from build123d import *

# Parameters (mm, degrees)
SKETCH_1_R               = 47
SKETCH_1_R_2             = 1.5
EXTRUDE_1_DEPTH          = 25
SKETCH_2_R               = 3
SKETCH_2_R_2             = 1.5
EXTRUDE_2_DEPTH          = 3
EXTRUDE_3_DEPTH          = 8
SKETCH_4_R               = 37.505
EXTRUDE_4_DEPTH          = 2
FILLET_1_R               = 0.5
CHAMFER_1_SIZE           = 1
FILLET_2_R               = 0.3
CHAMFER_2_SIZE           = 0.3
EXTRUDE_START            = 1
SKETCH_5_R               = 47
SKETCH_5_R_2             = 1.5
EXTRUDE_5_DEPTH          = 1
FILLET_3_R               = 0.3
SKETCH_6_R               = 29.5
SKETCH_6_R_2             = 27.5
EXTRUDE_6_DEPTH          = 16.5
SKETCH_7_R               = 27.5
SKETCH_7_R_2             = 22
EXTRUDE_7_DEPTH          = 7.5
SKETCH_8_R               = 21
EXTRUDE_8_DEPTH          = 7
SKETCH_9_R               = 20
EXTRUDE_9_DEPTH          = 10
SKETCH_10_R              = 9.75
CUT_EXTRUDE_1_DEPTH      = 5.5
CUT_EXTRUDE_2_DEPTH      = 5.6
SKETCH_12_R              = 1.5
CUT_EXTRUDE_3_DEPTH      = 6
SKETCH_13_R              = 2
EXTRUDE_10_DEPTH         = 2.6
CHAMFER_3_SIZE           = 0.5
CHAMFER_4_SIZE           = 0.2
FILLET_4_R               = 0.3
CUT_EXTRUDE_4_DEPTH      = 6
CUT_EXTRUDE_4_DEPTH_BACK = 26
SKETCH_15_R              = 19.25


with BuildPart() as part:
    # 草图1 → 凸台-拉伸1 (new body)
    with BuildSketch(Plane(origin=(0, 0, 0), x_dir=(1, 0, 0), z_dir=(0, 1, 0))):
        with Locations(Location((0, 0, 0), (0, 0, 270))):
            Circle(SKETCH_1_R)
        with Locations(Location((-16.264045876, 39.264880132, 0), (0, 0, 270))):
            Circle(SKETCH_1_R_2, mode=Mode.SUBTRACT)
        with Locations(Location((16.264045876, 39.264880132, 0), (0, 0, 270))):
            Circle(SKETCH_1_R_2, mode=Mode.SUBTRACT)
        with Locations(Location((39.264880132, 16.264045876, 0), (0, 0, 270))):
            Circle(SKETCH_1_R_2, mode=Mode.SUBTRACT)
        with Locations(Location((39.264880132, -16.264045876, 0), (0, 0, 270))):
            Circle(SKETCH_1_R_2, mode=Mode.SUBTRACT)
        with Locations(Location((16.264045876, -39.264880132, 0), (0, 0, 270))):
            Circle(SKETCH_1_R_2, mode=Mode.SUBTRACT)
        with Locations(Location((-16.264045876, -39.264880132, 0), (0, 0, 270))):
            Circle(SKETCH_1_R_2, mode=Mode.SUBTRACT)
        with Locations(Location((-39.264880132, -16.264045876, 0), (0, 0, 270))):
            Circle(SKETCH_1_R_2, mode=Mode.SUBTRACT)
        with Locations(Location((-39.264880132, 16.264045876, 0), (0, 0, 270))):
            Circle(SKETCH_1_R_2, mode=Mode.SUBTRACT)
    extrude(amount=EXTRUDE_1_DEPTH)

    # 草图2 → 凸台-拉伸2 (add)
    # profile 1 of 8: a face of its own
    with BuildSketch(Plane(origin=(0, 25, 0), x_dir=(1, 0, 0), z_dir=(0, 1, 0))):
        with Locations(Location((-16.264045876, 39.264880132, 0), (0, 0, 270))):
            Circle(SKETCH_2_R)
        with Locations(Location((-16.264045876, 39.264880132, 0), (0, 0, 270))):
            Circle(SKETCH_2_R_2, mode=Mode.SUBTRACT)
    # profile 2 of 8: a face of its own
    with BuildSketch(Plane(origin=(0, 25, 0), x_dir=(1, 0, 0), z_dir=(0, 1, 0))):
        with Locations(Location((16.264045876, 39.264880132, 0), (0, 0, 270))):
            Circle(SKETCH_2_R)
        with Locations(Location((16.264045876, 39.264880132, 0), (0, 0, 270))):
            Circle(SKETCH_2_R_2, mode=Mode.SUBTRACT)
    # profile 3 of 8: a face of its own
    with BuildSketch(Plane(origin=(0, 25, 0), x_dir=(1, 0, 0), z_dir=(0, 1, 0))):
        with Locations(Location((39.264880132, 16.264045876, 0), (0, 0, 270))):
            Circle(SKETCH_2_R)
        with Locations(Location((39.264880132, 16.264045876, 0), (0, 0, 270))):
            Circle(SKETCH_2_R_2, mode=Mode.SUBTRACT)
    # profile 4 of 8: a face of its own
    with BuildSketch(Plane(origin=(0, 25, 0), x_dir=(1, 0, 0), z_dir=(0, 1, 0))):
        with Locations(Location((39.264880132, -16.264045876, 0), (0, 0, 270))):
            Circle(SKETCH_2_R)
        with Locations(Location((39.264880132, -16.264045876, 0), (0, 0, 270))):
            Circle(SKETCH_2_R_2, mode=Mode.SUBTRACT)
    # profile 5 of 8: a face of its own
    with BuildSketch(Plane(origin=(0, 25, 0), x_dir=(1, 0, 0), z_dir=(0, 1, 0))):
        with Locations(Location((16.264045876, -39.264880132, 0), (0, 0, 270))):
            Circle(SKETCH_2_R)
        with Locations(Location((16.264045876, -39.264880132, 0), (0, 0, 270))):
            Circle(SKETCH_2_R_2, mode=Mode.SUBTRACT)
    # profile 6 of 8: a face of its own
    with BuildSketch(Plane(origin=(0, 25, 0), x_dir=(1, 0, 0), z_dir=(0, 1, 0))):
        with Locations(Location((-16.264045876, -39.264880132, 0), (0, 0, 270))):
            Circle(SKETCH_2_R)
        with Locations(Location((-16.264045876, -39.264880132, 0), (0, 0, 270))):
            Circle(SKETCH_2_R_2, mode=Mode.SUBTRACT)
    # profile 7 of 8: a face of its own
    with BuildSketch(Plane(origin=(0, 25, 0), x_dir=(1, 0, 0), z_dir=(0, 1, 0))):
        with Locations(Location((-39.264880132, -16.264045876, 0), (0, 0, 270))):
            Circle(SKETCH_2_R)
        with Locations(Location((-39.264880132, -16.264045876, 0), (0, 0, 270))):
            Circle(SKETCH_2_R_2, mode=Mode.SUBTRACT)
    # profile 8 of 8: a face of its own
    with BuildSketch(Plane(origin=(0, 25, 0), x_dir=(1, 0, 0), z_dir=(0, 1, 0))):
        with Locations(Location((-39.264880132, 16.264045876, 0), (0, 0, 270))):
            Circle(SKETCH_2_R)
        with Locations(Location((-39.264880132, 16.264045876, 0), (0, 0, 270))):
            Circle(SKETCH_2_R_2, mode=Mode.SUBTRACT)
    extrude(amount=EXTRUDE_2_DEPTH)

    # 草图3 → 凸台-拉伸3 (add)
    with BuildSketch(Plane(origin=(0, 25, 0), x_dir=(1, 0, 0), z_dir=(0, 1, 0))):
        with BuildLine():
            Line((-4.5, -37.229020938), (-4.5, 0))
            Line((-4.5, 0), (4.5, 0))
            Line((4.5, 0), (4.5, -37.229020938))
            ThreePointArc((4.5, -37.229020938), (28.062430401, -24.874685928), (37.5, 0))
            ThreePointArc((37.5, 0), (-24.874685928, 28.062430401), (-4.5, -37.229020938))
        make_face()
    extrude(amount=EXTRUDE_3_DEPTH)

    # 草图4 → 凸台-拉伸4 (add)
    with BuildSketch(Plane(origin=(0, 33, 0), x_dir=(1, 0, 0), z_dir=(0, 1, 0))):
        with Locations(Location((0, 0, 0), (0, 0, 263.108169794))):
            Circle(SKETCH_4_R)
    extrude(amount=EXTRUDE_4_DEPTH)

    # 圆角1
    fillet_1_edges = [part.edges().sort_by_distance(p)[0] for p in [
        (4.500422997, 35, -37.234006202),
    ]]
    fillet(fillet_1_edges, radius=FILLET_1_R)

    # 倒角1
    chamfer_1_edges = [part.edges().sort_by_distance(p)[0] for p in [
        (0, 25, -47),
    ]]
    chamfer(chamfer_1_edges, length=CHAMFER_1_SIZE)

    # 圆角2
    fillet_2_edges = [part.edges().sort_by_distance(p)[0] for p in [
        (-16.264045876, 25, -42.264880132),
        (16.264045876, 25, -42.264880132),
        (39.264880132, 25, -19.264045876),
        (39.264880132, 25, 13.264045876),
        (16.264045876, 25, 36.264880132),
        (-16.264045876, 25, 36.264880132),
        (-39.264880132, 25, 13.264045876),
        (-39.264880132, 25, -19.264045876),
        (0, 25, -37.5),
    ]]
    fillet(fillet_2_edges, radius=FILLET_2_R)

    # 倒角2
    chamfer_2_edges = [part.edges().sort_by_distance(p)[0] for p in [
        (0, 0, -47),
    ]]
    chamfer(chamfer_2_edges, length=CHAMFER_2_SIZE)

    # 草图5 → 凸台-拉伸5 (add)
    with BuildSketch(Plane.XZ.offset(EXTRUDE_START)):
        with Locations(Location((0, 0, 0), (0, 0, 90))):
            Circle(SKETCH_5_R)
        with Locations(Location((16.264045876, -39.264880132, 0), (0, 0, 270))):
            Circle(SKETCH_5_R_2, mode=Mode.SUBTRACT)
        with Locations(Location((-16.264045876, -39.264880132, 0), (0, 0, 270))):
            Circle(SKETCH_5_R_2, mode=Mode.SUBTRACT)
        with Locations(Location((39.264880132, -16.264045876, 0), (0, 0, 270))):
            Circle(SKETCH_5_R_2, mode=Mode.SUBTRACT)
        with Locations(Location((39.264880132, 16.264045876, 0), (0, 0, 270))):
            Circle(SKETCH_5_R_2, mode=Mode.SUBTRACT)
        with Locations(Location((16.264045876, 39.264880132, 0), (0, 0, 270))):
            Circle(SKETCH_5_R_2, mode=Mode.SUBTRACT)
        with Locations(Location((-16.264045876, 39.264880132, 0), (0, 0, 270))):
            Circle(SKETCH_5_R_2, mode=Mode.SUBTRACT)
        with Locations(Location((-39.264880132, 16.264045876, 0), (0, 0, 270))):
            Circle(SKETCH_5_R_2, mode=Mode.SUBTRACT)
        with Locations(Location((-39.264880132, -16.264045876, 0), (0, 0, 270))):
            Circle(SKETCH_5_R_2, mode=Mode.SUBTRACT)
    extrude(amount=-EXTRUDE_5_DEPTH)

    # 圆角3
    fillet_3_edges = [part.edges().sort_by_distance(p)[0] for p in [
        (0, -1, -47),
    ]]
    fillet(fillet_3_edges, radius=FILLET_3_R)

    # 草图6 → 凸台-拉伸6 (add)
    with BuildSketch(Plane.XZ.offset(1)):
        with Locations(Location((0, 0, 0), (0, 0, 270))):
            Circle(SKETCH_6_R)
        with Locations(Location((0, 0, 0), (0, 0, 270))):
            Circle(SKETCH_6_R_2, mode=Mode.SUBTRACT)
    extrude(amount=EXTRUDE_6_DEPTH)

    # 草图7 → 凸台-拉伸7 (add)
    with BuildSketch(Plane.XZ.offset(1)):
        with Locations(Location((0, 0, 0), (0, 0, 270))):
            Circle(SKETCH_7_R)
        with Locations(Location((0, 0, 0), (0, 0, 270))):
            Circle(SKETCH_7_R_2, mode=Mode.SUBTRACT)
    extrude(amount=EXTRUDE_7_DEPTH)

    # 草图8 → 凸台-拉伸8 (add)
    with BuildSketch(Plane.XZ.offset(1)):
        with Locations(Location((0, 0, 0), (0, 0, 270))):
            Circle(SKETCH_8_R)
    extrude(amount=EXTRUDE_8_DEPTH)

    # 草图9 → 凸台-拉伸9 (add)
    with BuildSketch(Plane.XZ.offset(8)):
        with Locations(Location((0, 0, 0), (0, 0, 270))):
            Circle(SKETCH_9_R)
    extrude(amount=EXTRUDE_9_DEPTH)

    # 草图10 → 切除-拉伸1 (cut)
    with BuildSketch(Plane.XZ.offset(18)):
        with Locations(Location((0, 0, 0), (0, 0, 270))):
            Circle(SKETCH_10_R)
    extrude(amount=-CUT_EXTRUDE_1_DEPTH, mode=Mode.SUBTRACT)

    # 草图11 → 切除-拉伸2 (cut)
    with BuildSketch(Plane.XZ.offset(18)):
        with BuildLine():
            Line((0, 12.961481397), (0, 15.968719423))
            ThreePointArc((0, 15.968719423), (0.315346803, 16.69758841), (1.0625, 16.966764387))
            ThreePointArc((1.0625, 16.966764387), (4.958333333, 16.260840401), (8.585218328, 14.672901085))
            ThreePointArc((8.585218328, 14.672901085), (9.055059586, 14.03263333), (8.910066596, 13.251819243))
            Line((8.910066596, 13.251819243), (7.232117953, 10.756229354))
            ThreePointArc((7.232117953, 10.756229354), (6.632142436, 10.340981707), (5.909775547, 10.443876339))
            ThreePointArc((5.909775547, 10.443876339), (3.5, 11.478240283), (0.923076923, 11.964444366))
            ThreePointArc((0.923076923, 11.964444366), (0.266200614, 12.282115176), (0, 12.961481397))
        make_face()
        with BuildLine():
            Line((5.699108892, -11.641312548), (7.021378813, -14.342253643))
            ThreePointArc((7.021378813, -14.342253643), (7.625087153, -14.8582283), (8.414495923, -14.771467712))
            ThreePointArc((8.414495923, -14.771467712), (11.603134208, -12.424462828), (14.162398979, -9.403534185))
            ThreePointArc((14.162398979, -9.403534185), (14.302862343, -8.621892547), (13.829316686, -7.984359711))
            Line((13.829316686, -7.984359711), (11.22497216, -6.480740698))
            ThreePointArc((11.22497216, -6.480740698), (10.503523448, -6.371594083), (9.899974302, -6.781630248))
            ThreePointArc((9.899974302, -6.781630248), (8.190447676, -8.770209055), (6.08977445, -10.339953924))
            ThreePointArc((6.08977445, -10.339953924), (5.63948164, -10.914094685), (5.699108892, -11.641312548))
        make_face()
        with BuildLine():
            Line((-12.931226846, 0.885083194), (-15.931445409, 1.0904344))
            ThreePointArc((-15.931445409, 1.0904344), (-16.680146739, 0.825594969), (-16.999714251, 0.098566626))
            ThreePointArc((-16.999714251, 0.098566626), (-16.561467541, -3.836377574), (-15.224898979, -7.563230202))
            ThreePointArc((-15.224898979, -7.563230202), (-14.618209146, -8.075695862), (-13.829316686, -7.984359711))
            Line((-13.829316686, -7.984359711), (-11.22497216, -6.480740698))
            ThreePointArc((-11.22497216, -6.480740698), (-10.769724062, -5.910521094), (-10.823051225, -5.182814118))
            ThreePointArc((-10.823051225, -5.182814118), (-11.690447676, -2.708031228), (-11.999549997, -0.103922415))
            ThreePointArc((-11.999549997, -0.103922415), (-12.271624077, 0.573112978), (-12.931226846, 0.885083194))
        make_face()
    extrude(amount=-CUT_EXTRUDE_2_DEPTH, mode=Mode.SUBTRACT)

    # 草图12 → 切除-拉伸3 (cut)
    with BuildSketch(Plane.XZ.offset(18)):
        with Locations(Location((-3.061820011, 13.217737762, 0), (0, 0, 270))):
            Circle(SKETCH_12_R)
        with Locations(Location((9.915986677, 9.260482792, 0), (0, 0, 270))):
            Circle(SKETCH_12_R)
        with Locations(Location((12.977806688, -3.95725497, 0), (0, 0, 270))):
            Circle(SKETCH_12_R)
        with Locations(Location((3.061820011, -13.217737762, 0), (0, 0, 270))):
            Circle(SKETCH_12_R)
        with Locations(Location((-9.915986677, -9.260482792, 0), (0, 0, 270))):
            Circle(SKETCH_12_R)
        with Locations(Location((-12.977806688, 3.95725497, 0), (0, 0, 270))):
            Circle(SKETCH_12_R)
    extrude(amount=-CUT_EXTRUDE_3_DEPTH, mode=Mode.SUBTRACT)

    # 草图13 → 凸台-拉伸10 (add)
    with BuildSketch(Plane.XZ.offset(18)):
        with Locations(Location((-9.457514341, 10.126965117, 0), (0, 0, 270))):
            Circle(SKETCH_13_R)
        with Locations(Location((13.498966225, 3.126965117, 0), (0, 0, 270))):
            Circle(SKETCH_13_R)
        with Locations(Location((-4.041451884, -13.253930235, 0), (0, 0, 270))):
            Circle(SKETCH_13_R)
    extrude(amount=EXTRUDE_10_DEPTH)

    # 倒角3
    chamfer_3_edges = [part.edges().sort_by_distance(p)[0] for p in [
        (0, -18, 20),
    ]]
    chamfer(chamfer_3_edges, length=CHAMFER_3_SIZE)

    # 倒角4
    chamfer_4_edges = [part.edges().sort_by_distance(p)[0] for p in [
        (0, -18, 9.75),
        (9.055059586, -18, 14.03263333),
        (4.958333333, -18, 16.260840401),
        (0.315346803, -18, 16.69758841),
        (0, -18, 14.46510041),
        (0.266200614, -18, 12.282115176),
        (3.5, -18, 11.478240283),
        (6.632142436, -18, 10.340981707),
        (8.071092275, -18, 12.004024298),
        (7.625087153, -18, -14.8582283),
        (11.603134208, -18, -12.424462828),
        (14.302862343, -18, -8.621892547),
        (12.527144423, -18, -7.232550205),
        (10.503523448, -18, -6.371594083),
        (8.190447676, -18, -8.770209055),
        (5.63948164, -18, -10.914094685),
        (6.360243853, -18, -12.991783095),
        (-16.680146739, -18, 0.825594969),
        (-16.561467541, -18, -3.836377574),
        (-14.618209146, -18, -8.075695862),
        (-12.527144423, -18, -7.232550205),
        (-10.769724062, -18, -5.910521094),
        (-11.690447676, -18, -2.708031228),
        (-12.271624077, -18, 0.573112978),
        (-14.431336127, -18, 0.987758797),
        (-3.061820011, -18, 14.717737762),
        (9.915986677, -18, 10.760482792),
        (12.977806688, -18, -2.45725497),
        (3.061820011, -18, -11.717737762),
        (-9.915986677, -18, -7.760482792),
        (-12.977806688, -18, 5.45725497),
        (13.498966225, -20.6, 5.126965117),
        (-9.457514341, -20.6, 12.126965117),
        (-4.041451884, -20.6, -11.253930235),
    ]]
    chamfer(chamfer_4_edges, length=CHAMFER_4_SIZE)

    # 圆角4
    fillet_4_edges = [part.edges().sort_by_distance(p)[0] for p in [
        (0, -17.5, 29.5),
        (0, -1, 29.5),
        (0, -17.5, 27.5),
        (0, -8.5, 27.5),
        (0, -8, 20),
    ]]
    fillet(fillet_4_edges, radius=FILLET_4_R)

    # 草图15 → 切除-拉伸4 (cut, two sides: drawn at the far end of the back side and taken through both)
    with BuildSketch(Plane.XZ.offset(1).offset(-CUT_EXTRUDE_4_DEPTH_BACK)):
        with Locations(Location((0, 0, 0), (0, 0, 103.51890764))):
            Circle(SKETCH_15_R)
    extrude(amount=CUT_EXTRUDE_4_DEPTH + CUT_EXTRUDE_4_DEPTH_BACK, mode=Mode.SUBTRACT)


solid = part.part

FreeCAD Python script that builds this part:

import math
import FreeCAD as App
import Part
import Sketcher

V = App.Vector
Q = App.Units.Quantity


def edges_at(feature, points):
    """Names of the edges that pass closest to the given points."""
    edges = feature.Shape.Edges
    near = lambda p: min(range(len(edges)), key=lambda i: edges[i].distToShape(Part.Vertex(*p))[0])
    return sorted({f"Edge{near(p) + 1}" for p in points})

doc = App.newDocument("Part")
body = doc.addObject("PartDesign::Body", "Body")

# Sketch on XZ plane
sketch1 = body.newObject("Sketcher::SketchObject", "Sketch")
sketch1.AttachmentSupport = (doc.getObject("XZ_Plane"), [""])
sketch1.MapMode = "FlatFace"
sketch1.addGeometry(Part.Circle(V(0, 0, 0), V(0, 0, 1), 47), False)
sketch1.addGeometry(Part.Circle(V(-39.3, -16.3, 0), V(0, 0, 1), 1.5), False)
sketch1.addGeometry(Part.Circle(V(-16.3, -39.3, 0), V(0, 0, 1), 1.5), False)
sketch1.addGeometry(Part.Circle(V(-39.3, 16.3, 0), V(0, 0, 1), 1.5), False)
sketch1.addGeometry(Part.Circle(V(-16.3, 39.3, 0), V(0, 0, 1), 1.5), False)
sketch1.addGeometry(Part.Circle(V(16.3, -39.3, 0), V(0, 0, 1), 1.5), False)
sketch1.addGeometry(Part.Circle(V(39.3, -16.3, 0), V(0, 0, 1), 1.5), False)
sketch1.addGeometry(Part.Circle(V(16.3, 39.3, 0), V(0, 0, 1), 1.5), False)
sketch1.addGeometry(Part.Circle(V(39.3, 16.3, 0), V(0, 0, 1), 1.5), False)
sketch1.addConstraint(Sketcher.Constraint("Coincident", 0, 3, -1, 1))
sketch1.addConstraint(Sketcher.Constraint("Equal", 1, 2))
sketch1.addConstraint(Sketcher.Constraint("Equal", 2, 3))
sketch1.addConstraint(Sketcher.Constraint("Equal", 3, 4))
sketch1.addConstraint(Sketcher.Constraint("Equal", 4, 5))
sketch1.addConstraint(Sketcher.Constraint("Equal", 5, 6))
sketch1.addConstraint(Sketcher.Constraint("Equal", 6, 7))
sketch1.addConstraint(Sketcher.Constraint("Equal", 7, 8))
sketch1.addConstraint(Sketcher.Constraint("Symmetric", 4, 3, 5, 3, -1, 1))
sketch1.addConstraint(Sketcher.Constraint("Symmetric", 3, 3, 6, 3, -1, 1))
sketch1.addConstraint(Sketcher.Constraint("Symmetric", 2, 3, 7, 3, -1, 1))
sketch1.addConstraint(Sketcher.Constraint("Symmetric", 1, 3, 8, 3, -1, 1))
sketch1.addConstraint(Sketcher.Constraint("Symmetric", 2, 3, 5, 3, -2))
sketch1.addConstraint(Sketcher.Constraint("Symmetric", 1, 3, 6, 3, -2))
sketch1.addConstraint(Sketcher.Constraint("Diameter", 0, Q("94 mm")))
sketch1.addConstraint(Sketcher.Constraint("Diameter", 1, Q("3 mm")))
sketch1.addConstraint(Sketcher.Constraint("DistanceX", 1, 3, -1, 1, Q("39.26488 mm")))
sketch1.addConstraint(Sketcher.Constraint("DistanceY", 2, 3, -1, 1, Q("39.26488 mm")))
sketch1.addConstraint(Sketcher.Constraint("DistanceY", 1, 3, 3, 3, Q("32.528092 mm")))
sketch1.addConstraint(Sketcher.Constraint("DistanceX", 2, 3, 5, 3, Q("32.528092 mm")))
pad1 = body.newObject("PartDesign::Pad", "Pad")
pad1.Profile = sketch1
pad1.Length = 25
pad1.Reversed = True

# Sketch on XZ plane
sketch2 = body.newObject("Sketcher::SketchObject", "Sketch001")
sketch2.AttachmentSupport = (doc.getObject("XZ_Plane"), [""])
sketch2.MapMode = "FlatFace"
sketch2.AttachmentOffset = App.Placement(V(0, 0, -25), App.Rotation())
sketch2.addGeometry(Part.Circle(V(-16.3, -39.3, 0), V(0, 0, 1), 3), False)
sketch2.addGeometry(Part.Circle(V(-16.3, -39.3, 0), V(0, 0, 1), 1.5), False)
sketch2.addGeometry(Part.Circle(V(16.3, -39.3, 0), V(0, 0, 1), 3), False)
sketch2.addGeometry(Part.Circle(V(16.3, -39.3, 0), V(0, 0, 1), 1.5), False)
sketch2.addGeometry(Part.Circle(V(39.3, -16.3, 0), V(0, 0, 1), 3), False)
sketch2.addGeometry(Part.Circle(V(39.3, -16.3, 0), V(0, 0, 1), 1.5), False)
sketch2.addGeometry(Part.Circle(V(39.3, 16.3, 0), V(0, 0, 1), 3), False)
sketch2.addGeometry(Part.Circle(V(39.3, 16.3, 0), V(0, 0, 1), 1.5), False)
sketch2.addGeometry(Part.Circle(V(16.3, 39.3, 0), V(0, 0, 1), 3), False)
sketch2.addGeometry(Part.Circle(V(16.3, 39.3, 0), V(0, 0, 1), 1.5), False)
sketch2.addGeometry(Part.Circle(V(-16.3, 39.3, 0), V(0, 0, 1), 3), False)
sketch2.addGeometry(Part.Circle(V(-16.3, 39.3, 0), V(0, 0, 1), 1.5), False)
sketch2.addGeometry(Part.Circle(V(-39.3, 16.3, 0), V(0, 0, 1), 3), False)
sketch2.addGeometry(Part.Circle(V(-39.3, 16.3, 0), V(0, 0, 1), 1.5), False)
sketch2.addGeometry(Part.Circle(V(-39.3, -16.3, 0), V(0, 0, 1), 3), False)
sketch2.addGeometry(Part.Circle(V(-39.3, -16.3, 0), V(0, 0, 1), 1.5), False)
sketch2.addConstraint(Sketcher.Constraint("Coincident", 1, 3, 0, 3))
sketch2.addConstraint(Sketcher.Constraint("Coincident", 3, 3, 2, 3))
sketch2.addConstraint(Sketcher.Constraint("Coincident", 5, 3, 4, 3))
sketch2.addConstraint(Sketcher.Constraint("Coincident", 7, 3, 6, 3))
sketch2.addConstraint(Sketcher.Constraint("Coincident", 9, 3, 8, 3))
sketch2.addConstraint(Sketcher.Constraint("Coincident", 11, 3, 10, 3))
sketch2.addConstraint(Sketcher.Constraint("Coincident", 13, 3, 12, 3))
sketch2.addConstraint(Sketcher.Constraint("Coincident", 15, 3, 14, 3))
sketch2.addConstraint(Sketcher.Constraint("Equal", 0, 2))
sketch2.addConstraint(Sketcher.Constraint("Equal", 1, 3))
sketch2.addConstraint(Sketcher.Constraint("Equal", 2, 4))
sketch2.addConstraint(Sketcher.Constraint("Equal", 3, 5))
sketch2.addConstraint(Sketcher.Constraint("Equal", 4, 6))
sketch2.addConstraint(Sketcher.Constraint("Equal", 5, 7))
sketch2.addConstraint(Sketcher.Constraint("Equal", 6, 8))
sketch2.addConstraint(Sketcher.Constraint("Equal", 7, 9))
sketch2.addConstraint(Sketcher.Constraint("Equal", 8, 10))
sketch2.addConstraint(Sketcher.Constraint("Equal", 9, 11))
sketch2.addConstraint(Sketcher.Constraint("Equal", 10, 12))
sketch2.addConstraint(Sketcher.Constraint("Equal", 11, 13))
sketch2.addConstraint(Sketcher.Constraint("Equal", 12, 14))
sketch2.addConstraint(Sketcher.Constraint("Equal", 13, 15))
sketch2.addConstraint(Sketcher.Constraint("Symmetric", 0, 3, 8, 3, -1, 1))
sketch2.addConstraint(Sketcher.Constraint("Symmetric", 2, 3, 10, 3, -1, 1))
sketch2.addConstraint(Sketcher.Constraint("Symmetric", 4, 3, 12, 3, -1, 1))
sketch2.addConstraint(Sketcher.Constraint("Symmetric", 6, 3, 14, 3, -1, 1))
sketch2.addConstraint(Sketcher.Constraint("Symmetric", 0, 3, 2, 3, -2))
sketch2.addConstraint(Sketcher.Constraint("Symmetric", 6, 3, 12, 3, -2))
sketch2.addConstraint(Sketcher.Constraint("Diameter", 0, Q("6 mm")))
sketch2.addConstraint(Sketcher.Constraint("Diameter", 1, Q("3 mm")))
sketch2.addConstraint(Sketcher.Constraint("DistanceY", 0, 3, -1, 1, Q("39.26488 mm")))
sketch2.addConstraint(Sketcher.Constraint("DistanceX", -1, 1, 4, 3, Q("39.26488 mm")))
sketch2.addConstraint(Sketcher.Constraint("DistanceX", 0, 3, 2, 3, Q("32.528092 mm")))
sketch2.addConstraint(Sketcher.Constraint("DistanceY", 4, 3, 6, 3, Q("32.528092 mm")))
pad2 = body.newObject("PartDesign::Pad", "Pad001")
pad2.Profile = sketch2
pad2.Length = 3
pad2.Reversed = True

# Sketch on XZ plane
sketch3 = body.newObject("Sketcher::SketchObject", "Sketch002")
sketch3.AttachmentSupport = (doc.getObject("XZ_Plane"), [""])
sketch3.MapMode = "FlatFace"
sketch3.AttachmentOffset = App.Placement(V(0, 0, -25), App.Rotation())
sketch3.addGeometry(Part.LineSegment(V(-4, 37, 0), V(-4, 0, 0)), False)
sketch3.addGeometry(Part.LineSegment(V(-4, 0, 0), V(4, 0, 0)), False)
sketch3.addGeometry(Part.LineSegment(V(4, 0, 0), V(4, 37, 0)), False)
sketch3.addGeometry(Part.ArcOfCircle(Part.Circle(V(0, 0, 0), V(0, 0, 1), 37), math.radians(0), math.radians(83)), False)
sketch3.addGeometry(Part.ArcOfCircle(Part.Circle(V(0, 0, 0), V(0, 0, 1), 38), math.radians(97), math.radians(360)), False)
sketch3.addConstraint(Sketcher.Constraint("Coincident", 0, 2, 1, 1))
sketch3.addConstraint(Sketcher.Constraint("Coincident", 1, 2, 2, 1))
sketch3.addConstraint(Sketcher.Constraint("Coincident", 2, 2, 3, 2))
sketch3.addConstraint(Sketcher.Constraint("Tangent", 3, 1, 4, 2))
sketch3.addConstraint(Sketcher.Constraint("Coincident", 4, 1, 0, 1))
sketch3.addConstraint(Sketcher.Constraint("Vertical", 0))
sketch3.addConstraint(Sketcher.Constraint("Horizontal", 1))
sketch3.addConstraint(Sketcher.Constraint("Vertical", 2))
sketch3.addConstraint(Sketcher.Constraint("Coincident", 3, 3, -1, 1))
sketch3.addConstraint(Sketcher.Constraint("Equal", 3, 4))
sketch3.addConstraint(Sketcher.Constraint("Symmetric", 0, 2, 1, 2, -1, 1))
sketch3.addConstraint(Sketcher.Constraint("PointOnObject", 3, 1, -1))
sketch3.addConstraint(Sketcher.Constraint("Radius", 3, Q("37.5 mm")))
sketch3.addConstraint(Sketcher.Constraint("DistanceX", 1, 1, 1, 2, Q("9 mm")))
pad3 = body.newObject("PartDesign::Pad", "Pad002")
pad3.Profile = sketch3
pad3.Length = 8
pad3.Reversed = True

# Sketch on XZ plane
sketch4 = body.newObject("Sketcher::SketchObject", "Sketch003")
sketch4.AttachmentSupport = (doc.getObject("XZ_Plane"), [""])
sketch4.MapMode = "FlatFace"
sketch4.AttachmentOffset = App.Placement(V(0, 0, -33), App.Rotation())
sketch4.addGeometry(Part.Circle(V(0, 0, 0), V(0, 0, 1), 38), False)
sketch4.addConstraint(Sketcher.Constraint("Coincident", 0, 3, -1, 1))
sketch4.addConstraint(Sketcher.Constraint("Diameter", 0, Q("75.01 mm")))
pad4 = body.newObject("PartDesign::Pad", "Pad003")
pad4.Profile = sketch4
pad4.Length = 2
pad4.Reversed = True
doc.recompute()

fillet = body.newObject("PartDesign::Fillet", "Fillet")
fillet.Base = (pad4, edges_at(pad4, [(4.5, 35, -37.234)]))
fillet.Radius = 0.5
doc.recompute()

chamfer = body.newObject("PartDesign::Chamfer", "Chamfer")
chamfer.Base = (fillet, edges_at(fillet, [(0, 25, -47)]))
chamfer.Size = 1
doc.recompute()

fillet2 = body.newObject("PartDesign::Fillet", "Fillet001")
fillet2.Base = (chamfer, edges_at(chamfer, [
    (-16.264, 25, -42.265),
    (16.264, 25, -42.265),
    (39.265, 25, -19.264),
    (39.265, 25, 13.264),
    (16.264, 25, 36.265),
    (-16.264, 25, 36.265),
    (-39.265, 25, 13.264),
    (-39.265, 25, -19.264),
    (-24.875, 25, -28.062),
]))
fillet2.Radius = 0.3
doc.recompute()

chamfer2 = body.newObject("PartDesign::Chamfer", "Chamfer001")
chamfer2.Base = (fillet2, edges_at(fillet2, [(0, 0, -47)]))
chamfer2.Size = 0.3

# Sketch on XZ plane
sketch5 = body.newObject("Sketcher::SketchObject", "Sketch004")
sketch5.AttachmentSupport = (doc.getObject("XZ_Plane"), [""])
sketch5.MapMode = "FlatFace"
sketch5.AttachmentOffset = App.Placement(V(0, 0, 1), App.Rotation())
sketch5.addGeometry(Part.Circle(V(0, 0, 0), V(0, 0, 1), 47), False)
sketch5.addGeometry(Part.Circle(V(39.3, -16.3, 0), V(0, 0, 1), 1.5), False)
sketch5.addGeometry(Part.Circle(V(16.3, -39.3, 0), V(0, 0, 1), 1.5), False)
sketch5.addGeometry(Part.Circle(V(39.3, 16.3, 0), V(0, 0, 1), 1.5), False)
sketch5.addGeometry(Part.Circle(V(16.3, 39.3, 0), V(0, 0, 1), 1.5), False)
sketch5.addGeometry(Part.Circle(V(-16.3, -39.3, 0), V(0, 0, 1), 1.5), False)
sketch5.addGeometry(Part.Circle(V(-39.3, -16.3, 0), V(0, 0, 1), 1.5), False)
sketch5.addGeometry(Part.Circle(V(-16.3, 39.3, 0), V(0, 0, 1), 1.5), False)
sketch5.addGeometry(Part.Circle(V(-39.3, 16.3, 0), V(0, 0, 1), 1.5), False)
sketch5.addConstraint(Sketcher.Constraint("Coincident", 0, 3, -1, 1))
sketch5.addConstraint(Sketcher.Constraint("Equal", 1, 2))
sketch5.addConstraint(Sketcher.Constraint("Equal", 2, 3))
sketch5.addConstraint(Sketcher.Constraint("Equal", 3, 4))
sketch5.addConstraint(Sketcher.Constraint("Equal", 4, 5))
sketch5.addConstraint(Sketcher.Constraint("Equal", 5, 6))
sketch5.addConstraint(Sketcher.Constraint("Equal", 6, 7))
sketch5.addConstraint(Sketcher.Constraint("Equal", 7, 8))
sketch5.addConstraint(Sketcher.Constraint("Symmetric", 4, 3, 5, 3, -1, 1))
sketch5.addConstraint(Sketcher.Constraint("Symmetric", 3, 3, 6, 3, -1, 1))
sketch5.addConstraint(Sketcher.Constraint("Symmetric", 2, 3, 7, 3, -1, 1))
sketch5.addConstraint(Sketcher.Constraint("Symmetric", 1, 3, 8, 3, -1, 1))
sketch5.addConstraint(Sketcher.Constraint("Symmetric", 2, 3, 5, 3, -2))
sketch5.addConstraint(Sketcher.Constraint("Symmetric", 1, 3, 6, 3, -2))
sketch5.addConstraint(Sketcher.Constraint("Diameter", 0, Q("94 mm")))
sketch5.addConstraint(Sketcher.Constraint("Diameter", 1, Q("3 mm")))
sketch5.addConstraint(Sketcher.Constraint("DistanceX", -1, 1, 1, 3, Q("39.26488 mm")))
sketch5.addConstraint(Sketcher.Constraint("DistanceY", 2, 3, -1, 1, Q("39.26488 mm")))
sketch5.addConstraint(Sketcher.Constraint("DistanceY", 1, 3, 3, 3, Q("32.528092 mm")))
sketch5.addConstraint(Sketcher.Constraint("DistanceX", 5, 3, 2, 3, Q("32.528092 mm")))
pad5 = body.newObject("PartDesign::Pad", "Pad004")
pad5.Profile = sketch5
pad5.Length = 1
pad5.Reversed = True
doc.recompute()

fillet3 = body.newObject("PartDesign::Fillet", "Fillet002")
fillet3.Base = (pad5, edges_at(pad5, [(0, -1, -47)]))
fillet3.Radius = 0.3

# Sketch on XZ plane
sketch6 = body.newObject("Sketcher::SketchObject", "Sketch005")
sketch6.AttachmentSupport = (doc.getObject("XZ_Plane"), [""])
sketch6.MapMode = "FlatFace"
sketch6.AttachmentOffset = App.Placement(V(0, 0, 1), App.Rotation())
sketch6.addGeometry(Part.Circle(V(0, 0, 0), V(0, 0, 1), 30), False)
sketch6.addGeometry(Part.Circle(V(0, 0, 0), V(0, 0, 1), 28), False)
sketch6.addConstraint(Sketcher.Constraint("Coincident", 0, 3, -1, 1))
sketch6.addConstraint(Sketcher.Constraint("Coincident", 1, 3, -1, 1))
sketch6.addConstraint(Sketcher.Constraint("Diameter", 0, Q("59 mm")))
sketch6.addConstraint(Sketcher.Constraint("Diameter", 1, Q("55 mm")))
pad6 = body.newObject("PartDesign::Pad", "Pad005")
pad6.Profile = sketch6
pad6.Length = 16.5

# Sketch on XZ plane
sketch7 = body.newObject("Sketcher::SketchObject", "Sketch006")
sketch7.AttachmentSupport = (doc.getObject("XZ_Plane"), [""])
sketch7.MapMode = "FlatFace"
sketch7.AttachmentOffset = App.Placement(V(0, 0, 1), App.Rotation())
sketch7.addGeometry(Part.Circle(V(0, 0, 0), V(0, 0, 1), 28), False)
sketch7.addGeometry(Part.Circle(V(0, 0, 0), V(0, 0, 1), 22), False)
sketch7.addConstraint(Sketcher.Constraint("Coincident", 0, 3, -1, 1))
sketch7.addConstraint(Sketcher.Constraint("Coincident", 1, 3, -1, 1))
sketch7.addConstraint(Sketcher.Constraint("Diameter", 0, Q("55 mm")))
sketch7.addConstraint(Sketcher.Constraint("Diameter", 1, Q("44 mm")))
pad7 = body.newObject("PartDesign::Pad", "Pad006")
pad7.Profile = sketch7
pad7.Length = 7.5

# Sketch on XZ plane
sketch8 = body.newObject("Sketcher::SketchObject", "Sketch007")
sketch8.AttachmentSupport = (doc.getObject("XZ_Plane"), [""])
sketch8.MapMode = "FlatFace"
sketch8.AttachmentOffset = App.Placement(V(0, 0, 1), App.Rotation())
sketch8.addGeometry(Part.Circle(V(0, 0, 0), V(0, 0, 1), 21), False)
sketch8.addConstraint(Sketcher.Constraint("Coincident", 0, 3, -1, 1))
sketch8.addConstraint(Sketcher.Constraint("Diameter", 0, Q("42 mm")))
pad8 = body.newObject("PartDesign::Pad", "Pad007")
pad8.Profile = sketch8
pad8.Length = 7

# Sketch on XZ plane
sketch9 = body.newObject("Sketcher::SketchObject", "Sketch008")
sketch9.AttachmentSupport = (doc.getObject("XZ_Plane"), [""])
sketch9.MapMode = "FlatFace"
sketch9.AttachmentOffset = App.Placement(V(0, 0, 8), App.Rotation())
sketch9.addGeometry(Part.Circle(V(0, 0, 0), V(0, 0, 1), 20), False)
sketch9.addConstraint(Sketcher.Constraint("Coincident", 0, 3, -1, 1))
sketch9.addConstraint(Sketcher.Constraint("Diameter", 0, Q("40 mm")))
pad9 = body.newObject("PartDesign::Pad", "Pad008")
pad9.Profile = sketch9
pad9.Length = 10

# Sketch on XZ plane
sketch10 = body.newObject("Sketcher::SketchObject", "Sketch009")
sketch10.AttachmentSupport = (doc.getObject("XZ_Plane"), [""])
sketch10.MapMode = "FlatFace"
sketch10.AttachmentOffset = App.Placement(V(0, 0, 18), App.Rotation())
sketch10.addGeometry(Part.Circle(V(0, 0, 0), V(0, 0, 1), 10), False)
sketch10.addConstraint(Sketcher.Constraint("Coincident", 0, 3, -1, 1))
sketch10.addConstraint(Sketcher.Constraint("Diameter", 0, Q("19.5 mm")))
pocket1 = body.newObject("PartDesign::Pocket", "Pocket")
pocket1.Profile = sketch10
pocket1.Length = 5.5

# Sketch on XZ plane
sketch11 = body.newObject("Sketcher::SketchObject", "Sketch010")
sketch11.AttachmentSupport = (doc.getObject("XZ_Plane"), [""])
sketch11.MapMode = "FlatFace"
sketch11.AttachmentOffset = App.Placement(V(0, 0, 18), App.Rotation())
sketch11.addGeometry(Part.LineSegment(V(0, 16, 0), V(0, 13, 0)), False)
sketch11.addGeometry(Part.ArcOfCircle(Part.Circle(V(1, 13, 0), V(0, 0, 1), 1), math.radians(180), math.radians(266)), False)
sketch11.addGeometry(Part.ArcOfCircle(Part.Circle(V(0, 0, 0), V(0, 0, 1), 12), math.radians(60), math.radians(86)), False)
sketch11.addGeometry(Part.ArcOfCircle(Part.Circle(V(6.4, 11.3, 0), V(0, 0, 1), 1), math.radians(-120), math.radians(-34)), False)
sketch11.addGeometry(Part.LineSegment(V(7.2, 10.8, 0), V(8.9, 13.3, 0)), False)
sketch11.addGeometry(Part.ArcOfCircle(Part.Circle(V(8.1, 13.8, 0), V(0, 0, 1), 1), math.radians(-34), math.radians(60)), False)
sketch11.addGeometry(Part.ArcOfCircle(Part.Circle(V(0, 0, 0), V(0, 0, 1), 17), math.radians(60), math.radians(86)), False)
sketch11.addGeometry(Part.ArcOfCircle(Part.Circle(V(1, 16, 0), V(0, 0, 1), 1), math.radians(86), math.radians(180)), False)
sketch11.addGeometry(Part.LineSegment(V(5.7, -11.6, 0), V(7, -14.3, 0)), False)
sketch11.addGeometry(Part.ArcOfCircle(Part.Circle(V(7.9, -13.9, 0), V(0, 0, 1), 1), math.radians(-154), math.radians(-60)), False)
sketch11.addGeometry(Part.ArcOfCircle(Part.Circle(V(0, 0, 0), V(0, 0, 1), 17), math.radians(-60), math.radians(-34)), False)
sketch11.addGeometry(Part.ArcOfCircle(Part.Circle(V(13.3, -8.9, 0), V(0, 0, 1), 1), math.radians(-34), math.radians(60)), False)
sketch11.addGeometry(Part.LineSegment(V(13.8, -8, 0), V(11.2, -6.5, 0)), False)
sketch11.addGeometry(Part.ArcOfCircle(Part.Circle(V(10.7, -7.3, 0), V(0, 0, 1), 1), math.radians(60), math.radians(146)), False)
sketch11.addGeometry(Part.ArcOfCircle(Part.Circle(V(0, 0, 0), V(0, 0, 1), 12), math.radians(-60), math.radians(-34)), False)
sketch11.addGeometry(Part.ArcOfCircle(Part.Circle(V(6.6, -11.2, 0), V(0, 0, 1), 1), math.radians(120), math.radians(206)), False)
sketch11.addGeometry(Part.LineSegment(V(-12.9, 0.9, 0), V(-15.9, 1.1, 0)), False)
sketch11.addGeometry(Part.ArcOfCircle(Part.Circle(V(-16, 0.1, 0), V(0, 0, 1), 1), math.radians(86), math.radians(180)), False)
sketch11.addGeometry(Part.ArcOfCircle(Part.Circle(V(0, 0, 0), V(0, 0, 1), 17), math.radians(180), math.radians(206)), False)
sketch11.addGeometry(Part.ArcOfCircle(Part.Circle(V(-14.3, -7.1, 0), V(0, 0, 1), 1), math.radians(-154), math.radians(-60)), False)
sketch11.addGeometry(Part.LineSegment(V(-13.8, -8, 0), V(-11.2, -6.5, 0)), False)
sketch11.addGeometry(Part.ArcOfCircle(Part.Circle(V(-11.7, -5.6, 0), V(0, 0, 1), 1), math.radians(-60), math.radians(26)), False)
sketch11.addGeometry(Part.ArcOfCircle(Part.Circle(V(0, 0, 0), V(0, 0, 1), 12), math.radians(-180), math.radians(-154)), False)
sketch11.addGeometry(Part.ArcOfCircle(Part.Circle(V(-13, -0.1, 0), V(0, 0, 1), 1), math.radians(0), math.radians(86)), False)
sketch11.addConstraint(Sketcher.Constraint("Tangent", 0, 2, 1, 1))
sketch11.addConstraint(Sketcher.Constraint("Tangent", 1, 2, 2, 2))
sketch11.addConstraint(Sketcher.Constraint("Tangent", 2, 1, 3, 1))
sketch11.addConstraint(Sketcher.Constraint("Tangent", 3, 2, 4, 1))
sketch11.addConstraint(Sketcher.Constraint("Tangent", 4, 2, 5, 1))
sketch11.addConstraint(Sketcher.Constraint("Tangent", 5, 2, 6, 1))
sketch11.addConstraint(Sketcher.Constraint("Tangent", 6, 2, 7, 1))
sketch11.addConstraint(Sketcher.Constraint("Tangent", 7, 2, 0, 1))
sketch11.addConstraint(Sketcher.Constraint("Tangent", 8, 2, 9, 1))
sketch11.addConstraint(Sketcher.Constraint("Tangent", 9, 2, 10, 1))
sketch11.addConstraint(Sketcher.Constraint("Tangent", 10, 2, 11, 1))
sketch11.addConstraint(Sketcher.Constraint("Tangent", 11, 2, 12, 1))
sketch11.addConstraint(Sketcher.Constraint("Tangent", 12, 2, 13, 1))
sketch11.addConstraint(Sketcher.Constraint("Tangent", 13, 2, 14, 2))
sketch11.addConstraint(Sketcher.Constraint("Tangent", 14, 1, 15, 1))
sketch11.addConstraint(Sketcher.Constraint("Tangent", 15, 2, 8, 1))
sketch11.addConstraint(Sketcher.Constraint("Tangent", 16, 2, 17, 1))
sketch11.addConstraint(Sketcher.Constraint("Tangent", 17, 2, 18, 1))
sketch11.addConstraint(Sketcher.Constraint("Tangent", 18, 2, 19, 1))
sketch11.addConstraint(Sketcher.Constraint("Tangent", 19, 2, 20, 1))
sketch11.addConstraint(Sketcher.Constraint("Tangent", 20, 2, 21, 1))
sketch11.addConstraint(Sketcher.Constraint("Tangent", 21, 2, 22, 2))
sketch11.addConstraint(Sketcher.Constraint("Tangent", 22, 1, 23, 1))
sketch11.addConstraint(Sketcher.Constraint("Tangent", 23, 2, 16, 1))
sketch11.addConstraint(Sketcher.Constraint("Vertical", 0))
sketch11.addConstraint(Sketcher.Constraint("Coincident", 2, 3, -1, 1))
sketch11.addConstraint(Sketcher.Constraint("Coincident", 6, 3, -1, 1))
sketch11.addConstraint(Sketcher.Constraint("Coincident", 10, 3, -1, 1))
sketch11.addConstraint(Sketcher.Constraint("Coincident", 14, 3, -1, 1))
sketch11.addConstraint(Sketcher.Constraint("Coincident", 18, 3, -1, 1))
sketch11.addConstraint(Sketcher.Constraint("Coincident", 22, 3, -1, 1))
sketch11.addConstraint(Sketcher.Constraint("Equal", 1, 3))
sketch11.addConstraint(Sketcher.Constraint("Equal", 3, 5))
sketch11.addConstraint(Sketcher.Constraint("Equal", 5, 7))
sketch11.addConstraint(Sketcher.Constraint("Equal", 7, 9))
sketch11.addConstraint(Sketcher.Constraint("Equal", 6, 10))
sketch11.addConstraint(Sketcher.Constraint("Equal", 9, 11))
sketch11.addConstraint(Sketcher.Constraint("Equal", 11, 13))
sketch11.addConstraint(Sketcher.Constraint("Equal", 2, 14))
sketch11.addConstraint(Sketcher.Constraint("Equal", 13, 15))
sketch11.addConstraint(Sketcher.Constraint("Equal", 15, 17))
sketch11.addConstraint(Sketcher.Constraint("Equal", 10, 18))
sketch11.addConstraint(Sketcher.Constraint("Equal", 17, 19))
sketch11.addConstraint(Sketcher.Constraint("Equal", 19, 21))
sketch11.addConstraint(Sketcher.Constraint("Equal", 14, 22))
sketch11.addConstraint(Sketcher.Constraint("Equal", 21, 23))
sketch11.addConstraint(Sketcher.Constraint("Symmetric", 11, 2, 19, 2, -2))
sketch11.addConstraint(Sketcher.Constraint("PointOnObject", 0, 2, -2))
sketch11.addConstraint(Sketcher.Constraint("Horizontal", 12, 2, 20, 2))
sketch11.addConstraint(Sketcher.Constraint("Equal", 4, 8))
sketch11.addConstraint(Sketcher.Constraint("Equal", 8, 12))
sketch11.addConstraint(Sketcher.Constraint("Equal", 12, 16))
sketch11.addConstraint(Sketcher.Constraint("Radius", 1, Q("1 mm")))
sketch11.addConstraint(Sketcher.Constraint("Radius", 2, Q("12 mm")))
sketch11.addConstraint(Sketcher.Constraint("Radius", 6, Q("17 mm")))
sketch11.addConstraint(Sketcher.Constraint("Angle", 12, Q("150 deg")))
sketch11.addConstraint(Sketcher.Constraint("DistanceY", 18, 2, 17, 3, Q("7.655999 mm")))
sketch11.addConstraint(Sketcher.Constraint("DistanceY", -1, 1, 3, 3, Q("11.314199 mm")))
sketch11.addConstraint(Sketcher.Constraint("DistanceY", 9, 2, 13, 3, Q("7.424702 mm")))
pocket2 = body.newObject("PartDesign::Pocket", "Pocket001")
pocket2.Profile = sketch11
pocket2.Length = 5.6

# Sketch on XZ plane
sketch12 = body.newObject("Sketcher::SketchObject", "Sketch011")
sketch12.AttachmentSupport = (doc.getObject("XZ_Plane"), [""])
sketch12.MapMode = "FlatFace"
sketch12.AttachmentOffset = App.Placement(V(0, 0, 18), App.Rotation())
sketch12.addGeometry(Part.Circle(V(-3.1, 13.2, 0), V(0, 0, 1), 1.5), False)
sketch12.addGeometry(Part.Circle(V(9.9, 9.3, 0), V(0, 0, 1), 1.5), False)
sketch12.addGeometry(Part.Circle(V(13, -4, 0), V(0, 0, 1), 1.5), False)
sketch12.addGeometry(Part.Circle(V(3.1, -13.2, 0), V(0, 0, 1), 1.5), False)
sketch12.addGeometry(Part.Circle(V(-9.9, -9.3, 0), V(0, 0, 1), 1.5), False)
sketch12.addGeometry(Part.Circle(V(-13, 4, 0), V(0, 0, 1), 1.5), False)
sketch12.addConstraint(Sketcher.Constraint("Equal", 0, 1))
sketch12.addConstraint(Sketcher.Constraint("Equal", 1, 2))
sketch12.addConstraint(Sketcher.Constraint("Equal", 2, 3))
sketch12.addConstraint(Sketcher.Constraint("Equal", 3, 4))
sketch12.addConstraint(Sketcher.Constraint("Equal", 4, 5))
sketch12.addConstraint(Sketcher.Constraint("Symmetric", 0, 3, 3, 3, -1, 1))
sketch12.addConstraint(Sketcher.Constraint("Symmetric", 1, 3, 4, 3, -1, 1))
sketch12.addConstraint(Sketcher.Constraint("Symmetric", 2, 3, 5, 3, -1, 1))
sketch12.addConstraint(Sketcher.Constraint("Diameter", 0, Q("3 mm")))
sketch12.addConstraint(Sketcher.Constraint("DistanceX", 0, 3, -1, 1, Q("3.06182 mm")))
sketch12.addConstraint(Sketcher.Constraint("DistanceX", 1, 3, 2, 3, Q("3.06182 mm")))
sketch12.addConstraint(Sketcher.Constraint("DistanceY", 3, 3, 1, 3, Q("22.478221 mm")))
sketch12.addConstraint(Sketcher.Constraint("DistanceY", 2, 3, 5, 3, Q("7.91451 mm")))
sketch12.addConstraint(Sketcher.Constraint("DistanceY", -1, 1, 0, 3, Q("13.217738 mm")))
sketch12.addConstraint(Sketcher.Constraint("DistanceX", -1, 1, 1, 3, Q("9.915987 mm")))
pocket3 = body.newObject("PartDesign::Pocket", "Pocket002")
pocket3.Profile = sketch12
pocket3.Length = 6

# Sketch on XZ plane
sketch13 = body.newObject("Sketcher::SketchObject", "Sketch012")
sketch13.AttachmentSupport = (doc.getObject("XZ_Plane"), [""])
sketch13.MapMode = "FlatFace"
sketch13.AttachmentOffset = App.Placement(V(0, 0, 18), App.Rotation())
sketch13.addGeometry(Part.Circle(V(-9.5, 10.1, 0), V(0, 0, 1), 2), False)
sketch13.addGeometry(Part.Circle(V(13.5, 3.1, 0), V(0, 0, 1), 2), False)
sketch13.addGeometry(Part.Circle(V(-4, -13.3, 0), V(0, 0, 1), 2), False)
sketch13.addConstraint(Sketcher.Constraint("Equal", 0, 1))
sketch13.addConstraint(Sketcher.Constraint("Equal", 1, 2))
sketch13.addConstraint(Sketcher.Constraint("Diameter", 0, Q("4 mm")))
sketch13.addConstraint(Sketcher.Constraint("DistanceY", 1, 3, 0, 3, Q("7 mm")))
sketch13.addConstraint(Sketcher.Constraint("DistanceX", 2, 3, -1, 1, Q("4.041452 mm")))
sketch13.addConstraint(Sketcher.Constraint("DistanceY", 2, 3, -1, 1, Q("13.25393 mm")))
sketch13.addConstraint(Sketcher.Constraint("DistanceX", 0, 3, 1, 3, Q("22.956481 mm")))
sketch13.addConstraint(Sketcher.Constraint("DistanceX", 2, 3, 1, 3, Q("17.540418 mm")))
sketch13.addConstraint(Sketcher.Constraint("DistanceY", -1, 1, 0, 3, Q("10.126965 mm")))
pad10 = body.newObject("PartDesign::Pad", "Pad009")
pad10.Profile = sketch13
pad10.Length = 2.6
doc.recompute()

chamfer3 = body.newObject("PartDesign::Chamfer", "Chamfer002")
chamfer3.Base = (pad10, edges_at(pad10, [(0, -18, 20)]))
chamfer3.Size = 0.5
doc.recompute()

chamfer4 = body.newObject("PartDesign::Chamfer", "Chamfer003")
chamfer4.Base = (chamfer3, edges_at(chamfer3, [
    (0, -18, 9.75),
    (9.055, -18, 14.033),
    (4.958, -18, 16.261),
    (0.315, -18, 16.698),
    (0, -18, 14.465),
    (0.266, -18, 12.282),
    (3.5, -18, 11.478),
    (6.632, -18, 10.341),
    (8.071, -18, 12.004),
    (7.625, -18, -14.858),
    (11.603, -18, -12.424),
    (14.303, -18, -8.622),
    (12.527, -18, -7.233),
    (10.504, -18, -6.372),
    (8.19, -18, -8.77),
    (5.639, -18, -10.914),
    (6.36, -18, -12.992),
    (-16.68, -18, 0.826),
    (-16.561, -18, -3.836),
    (-14.618, -18, -8.076),
    (-12.527, -18, -7.233),
    (-10.77, -18, -5.911),
    (-11.69, -18, -2.708),
    (-12.272, -18, 0.573),
    (-14.431, -18, 0.988),
    (-3.062, -18, 14.718),
    (9.916, -18, 10.76),
    (12.978, -18, -2.457),
    (3.062, -18, -11.718),
    (-9.916, -18, -7.76),
    (-12.978, -18, 5.457),
    (13.499, -20.6, 5.127),
    (-9.458, -20.6, 12.127),
    (-4.041, -20.6, -11.254),
]))
chamfer4.Size = 0.2
doc.recompute()

fillet4 = body.newObject("PartDesign::Fillet", "Fillet003")
fillet4.Base = (chamfer4, edges_at(chamfer4, [
    (0, -17.5, 29.5),
    (0, -1, 29.5),
    (0, -17.5, 27.5),
    (0, -8.5, 27.5),
    (0, -8, 20),
]))
fillet4.Radius = 0.3

# Sketch on XZ plane
sketch14 = body.newObject("Sketcher::SketchObject", "Sketch013")
sketch14.AttachmentSupport = (doc.getObject("XZ_Plane"), [""])
sketch14.MapMode = "FlatFace"
sketch14.AttachmentOffset = App.Placement(V(0, 0, 1), App.Rotation())
sketch14.addGeometry(Part.Circle(V(0, 0, 0), V(0, 0, 1), 19), False)
sketch14.addConstraint(Sketcher.Constraint("Coincident", 0, 3, -1, 1))
sketch14.addConstraint(Sketcher.Constraint("Diameter", 0, Q("38.5 mm")))
pocket4 = body.newObject("PartDesign::Pocket", "Pocket003")
pocket4.Profile = sketch14
pocket4.Type = "TwoLengths"
pocket4.Length = 6
pocket4.Length2 = 26
pocket4.Reversed = True

doc.recompute()
